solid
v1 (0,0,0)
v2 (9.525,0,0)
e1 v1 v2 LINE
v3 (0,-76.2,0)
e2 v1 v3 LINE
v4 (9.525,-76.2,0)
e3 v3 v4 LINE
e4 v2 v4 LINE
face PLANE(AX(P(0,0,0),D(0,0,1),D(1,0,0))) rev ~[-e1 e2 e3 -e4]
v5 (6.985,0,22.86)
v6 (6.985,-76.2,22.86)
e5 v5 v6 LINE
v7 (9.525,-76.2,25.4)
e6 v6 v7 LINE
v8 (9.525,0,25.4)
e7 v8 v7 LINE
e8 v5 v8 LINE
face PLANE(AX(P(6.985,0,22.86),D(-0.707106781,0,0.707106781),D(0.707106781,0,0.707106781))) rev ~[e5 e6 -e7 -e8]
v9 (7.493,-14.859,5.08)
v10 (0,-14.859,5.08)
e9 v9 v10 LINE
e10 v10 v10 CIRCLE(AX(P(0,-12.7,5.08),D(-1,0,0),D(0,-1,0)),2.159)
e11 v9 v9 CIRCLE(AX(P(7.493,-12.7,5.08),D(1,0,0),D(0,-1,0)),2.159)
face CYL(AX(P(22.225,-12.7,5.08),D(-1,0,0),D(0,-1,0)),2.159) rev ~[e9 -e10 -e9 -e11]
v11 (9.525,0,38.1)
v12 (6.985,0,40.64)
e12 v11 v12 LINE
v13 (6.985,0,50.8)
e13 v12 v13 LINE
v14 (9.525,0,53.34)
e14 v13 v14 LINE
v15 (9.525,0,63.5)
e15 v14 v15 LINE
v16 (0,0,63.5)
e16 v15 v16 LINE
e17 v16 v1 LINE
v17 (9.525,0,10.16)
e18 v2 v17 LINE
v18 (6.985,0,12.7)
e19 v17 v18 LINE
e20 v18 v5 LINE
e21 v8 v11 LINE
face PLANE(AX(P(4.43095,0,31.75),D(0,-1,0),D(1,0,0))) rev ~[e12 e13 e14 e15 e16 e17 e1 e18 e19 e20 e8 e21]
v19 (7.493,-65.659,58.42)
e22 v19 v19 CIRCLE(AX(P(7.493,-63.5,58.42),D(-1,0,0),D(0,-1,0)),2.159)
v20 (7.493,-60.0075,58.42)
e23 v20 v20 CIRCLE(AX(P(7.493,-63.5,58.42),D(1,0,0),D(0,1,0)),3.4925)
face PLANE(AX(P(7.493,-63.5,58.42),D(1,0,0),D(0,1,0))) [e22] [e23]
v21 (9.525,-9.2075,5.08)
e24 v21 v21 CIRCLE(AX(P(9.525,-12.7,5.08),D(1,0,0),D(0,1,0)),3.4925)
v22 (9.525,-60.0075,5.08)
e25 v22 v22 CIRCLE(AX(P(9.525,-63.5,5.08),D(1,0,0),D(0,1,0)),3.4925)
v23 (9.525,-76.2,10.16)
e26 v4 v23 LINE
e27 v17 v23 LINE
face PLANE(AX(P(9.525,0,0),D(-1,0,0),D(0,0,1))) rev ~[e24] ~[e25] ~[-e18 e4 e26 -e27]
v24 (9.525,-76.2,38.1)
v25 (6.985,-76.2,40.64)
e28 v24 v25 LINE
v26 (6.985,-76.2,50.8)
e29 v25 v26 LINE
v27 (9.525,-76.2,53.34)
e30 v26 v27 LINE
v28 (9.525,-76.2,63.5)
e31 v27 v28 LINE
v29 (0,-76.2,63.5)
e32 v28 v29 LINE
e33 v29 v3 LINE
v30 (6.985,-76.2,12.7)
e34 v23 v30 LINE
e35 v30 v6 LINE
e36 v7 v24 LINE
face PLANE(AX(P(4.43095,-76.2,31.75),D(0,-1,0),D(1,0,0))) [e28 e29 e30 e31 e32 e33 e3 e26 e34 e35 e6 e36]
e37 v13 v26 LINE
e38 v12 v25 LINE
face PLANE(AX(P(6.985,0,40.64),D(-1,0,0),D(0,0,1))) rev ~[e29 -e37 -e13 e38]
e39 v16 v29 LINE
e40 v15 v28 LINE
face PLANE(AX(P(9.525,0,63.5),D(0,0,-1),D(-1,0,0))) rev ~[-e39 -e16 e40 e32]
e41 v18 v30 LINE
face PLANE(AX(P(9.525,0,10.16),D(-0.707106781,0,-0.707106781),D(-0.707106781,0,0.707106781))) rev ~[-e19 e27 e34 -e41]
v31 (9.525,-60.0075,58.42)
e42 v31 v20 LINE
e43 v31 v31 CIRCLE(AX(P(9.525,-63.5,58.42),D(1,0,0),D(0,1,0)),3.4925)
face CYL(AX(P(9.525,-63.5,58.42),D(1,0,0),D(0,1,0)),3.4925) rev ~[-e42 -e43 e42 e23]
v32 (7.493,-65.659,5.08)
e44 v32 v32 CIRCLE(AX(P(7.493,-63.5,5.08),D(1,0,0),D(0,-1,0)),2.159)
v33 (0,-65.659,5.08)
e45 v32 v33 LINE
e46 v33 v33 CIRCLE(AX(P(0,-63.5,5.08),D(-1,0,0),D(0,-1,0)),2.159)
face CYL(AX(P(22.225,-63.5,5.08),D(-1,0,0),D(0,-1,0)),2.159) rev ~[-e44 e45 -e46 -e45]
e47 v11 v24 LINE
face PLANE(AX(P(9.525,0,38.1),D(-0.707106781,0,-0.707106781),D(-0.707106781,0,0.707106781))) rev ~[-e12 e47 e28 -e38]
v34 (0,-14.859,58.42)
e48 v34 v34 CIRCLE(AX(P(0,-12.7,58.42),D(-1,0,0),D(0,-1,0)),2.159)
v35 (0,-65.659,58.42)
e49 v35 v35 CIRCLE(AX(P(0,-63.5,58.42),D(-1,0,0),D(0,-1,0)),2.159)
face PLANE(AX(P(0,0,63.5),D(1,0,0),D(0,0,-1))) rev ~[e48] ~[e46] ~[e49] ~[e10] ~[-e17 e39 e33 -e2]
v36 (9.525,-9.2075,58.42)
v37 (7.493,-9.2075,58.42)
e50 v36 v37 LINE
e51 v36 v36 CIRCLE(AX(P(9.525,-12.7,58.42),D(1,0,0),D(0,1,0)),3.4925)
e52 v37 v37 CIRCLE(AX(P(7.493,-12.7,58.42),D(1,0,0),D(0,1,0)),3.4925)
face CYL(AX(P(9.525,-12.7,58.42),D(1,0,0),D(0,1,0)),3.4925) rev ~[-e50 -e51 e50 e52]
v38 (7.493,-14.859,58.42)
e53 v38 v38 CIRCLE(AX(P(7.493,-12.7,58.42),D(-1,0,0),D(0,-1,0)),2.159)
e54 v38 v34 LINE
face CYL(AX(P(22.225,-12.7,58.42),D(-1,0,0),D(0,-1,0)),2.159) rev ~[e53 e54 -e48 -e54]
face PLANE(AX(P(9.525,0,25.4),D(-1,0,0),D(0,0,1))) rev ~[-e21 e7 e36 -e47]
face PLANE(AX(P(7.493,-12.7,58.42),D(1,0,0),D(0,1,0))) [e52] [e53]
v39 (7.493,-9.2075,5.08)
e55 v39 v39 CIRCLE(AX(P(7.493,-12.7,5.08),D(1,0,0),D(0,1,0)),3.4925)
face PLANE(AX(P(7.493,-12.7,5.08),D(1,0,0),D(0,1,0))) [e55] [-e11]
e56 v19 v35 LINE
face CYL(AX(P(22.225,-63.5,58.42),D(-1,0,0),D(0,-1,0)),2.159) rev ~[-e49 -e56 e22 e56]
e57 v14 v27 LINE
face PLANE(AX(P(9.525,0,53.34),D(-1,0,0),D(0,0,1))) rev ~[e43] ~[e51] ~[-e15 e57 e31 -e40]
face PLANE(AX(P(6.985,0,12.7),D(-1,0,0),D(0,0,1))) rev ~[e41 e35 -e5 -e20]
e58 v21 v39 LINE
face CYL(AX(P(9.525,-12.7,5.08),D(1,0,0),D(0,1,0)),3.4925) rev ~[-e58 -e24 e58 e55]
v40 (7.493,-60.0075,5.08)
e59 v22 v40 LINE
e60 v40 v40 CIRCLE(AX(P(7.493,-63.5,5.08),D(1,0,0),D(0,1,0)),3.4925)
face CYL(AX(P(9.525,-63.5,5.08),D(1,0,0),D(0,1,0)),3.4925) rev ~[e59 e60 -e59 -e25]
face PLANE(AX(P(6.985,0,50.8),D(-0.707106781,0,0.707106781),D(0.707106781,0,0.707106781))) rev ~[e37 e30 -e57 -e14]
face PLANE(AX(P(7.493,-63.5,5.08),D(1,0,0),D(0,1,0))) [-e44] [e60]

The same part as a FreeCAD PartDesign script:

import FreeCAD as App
import Part
import Sketcher
from FreeCAD import Vector
Q = App.Units.Quantity


def add_polygon(sketch, points):
    """Adds a closed chain of lines whose ends are joined by coincident constraints."""
    first, n = sketch.GeometryCount, len(points)
    for a, b in zip(points, points[1:] + points[:1]):
        sketch.addGeometry(Part.LineSegment(App.Vector(*a, 0), App.Vector(*b, 0)), False)
    for i in range(n):
        sketch.addConstraint(Sketcher.Constraint("Coincident", first + i, 2, first + (i + 1) % n, 1))

doc = App.newDocument("Part")
body = doc.addObject("PartDesign::Body", "Body")

sketch1 = body.newObject("Sketcher::SketchObject", "Sketch")
sketch1.AttachmentSupport = (doc.getObject("XZ_Plane"), [""])
sketch1.MapMode = "FlatFace"
add_polygon(sketch1, [(0, 63.5), (0, 0), (9.5, 0), (9.5, 10.2), (7, 12.7), (7, 22.9), (9.5, 25.4), (9.5, 38.1), (7, 40.6), (7, 50.8), (9.5, 53.3), (9.5, 63.5)])
sketch1.addConstraint([
    Sketcher.Constraint("Vertical", 0),
    Sketcher.Constraint("Horizontal", 1),
    Sketcher.Constraint("Vertical", 2),
    Sketcher.Constraint("Vertical", 4),
    Sketcher.Constraint("Vertical", 6),
    Sketcher.Constraint("Vertical", 8),
    Sketcher.Constraint("Vertical", 10),
    Sketcher.Constraint("Horizontal", 11),
    Sketcher.Constraint("Coincident", 0, 2, -1, 1),
    Sketcher.Constraint("Perpendicular", 3, 5),
    Sketcher.Constraint("Perpendicular", 5, 7),
    Sketcher.Constraint("Perpendicular", 7, 9),
    Sketcher.Constraint("Vertical", 2, 2, 5, 2),
    Sketcher.Constraint("Vertical", 4, 2, 7, 2),
    Sketcher.Constraint("Vertical", 6, 2, 9, 2),
    Sketcher.Constraint("Equal", 2, 4),
    Sketcher.Constraint("Equal", 4, 8),
    Sketcher.Constraint("Equal", 8, 10),
    Sketcher.Constraint("Equal", 3, 5),
    Sketcher.Constraint("DistanceY", 0, 2, 0, 1, Q("2.5 in")),
    Sketcher.Constraint("DistanceY", 2, 1, 2, 2, Q("0.4 in")),
    Sketcher.Constraint("DistanceY", 6, 1, 6, 2, Q("0.5 in")),
    Sketcher.Constraint("DistanceX", 1, 1, 1, 2, Q("0.375 in")),
])
pad1 = body.newObject("PartDesign::Pad", "Pad")
pad1.Profile = sketch1
pad1.Length = Q("3 in")

sketch2 = body.newObject("Sketcher::SketchObject", "Sketch001")
sketch2.AttachmentSupport = (doc.getObject("YZ_Plane"), [""])
sketch2.MapMode = "FlatFace"
sketch2.AttachmentOffset = App.Placement(Vector(0, 0, 0.375 * 25.4), App.Rotation())
sketch2.addGeometry([
    Part.Circle(Vector(-63.5, 58.4, 0), Vector(0, 0, 1), 2.2),
    Part.Circle(Vector(-12.7, 58.4, 0), Vector(0, 0, 1), 2.2),
    Part.Circle(Vector(-63.5, 5.1, 0), Vector(0, 0, 1), 2.2),
    Part.Circle(Vector(-12.7, 5.1, 0), Vector(0, 0, 1), 2.2),
], False)
sketch2.addConstraint([
    Sketcher.Constraint("Equal", 0, 1),
    Sketcher.Constraint("Equal", 1, 2),
    Sketcher.Constraint("Equal", 2, 3),
    Sketcher.Constraint("Horizontal", 0, 3, 1, 3),
    Sketcher.Constraint("Horizontal", 2, 3, 3, 3),
    Sketcher.Constraint("Vertical", 0, 3, 2, 3),
    Sketcher.Constraint("Vertical", 1, 3, 3, 3),
    Sketcher.Constraint("Diameter", 0, Q("0.17 in")),
    Sketcher.Constraint("DistanceX", 0, 3, 1, 3, Q("2 in")),
    Sketcher.Constraint("DistanceX", 0, 3, -1, 1, Q("2.5 in")),
    Sketcher.Constraint("DistanceY", -1, 1, 0, 3, Q("2.3 in")),
    Sketcher.Constraint("DistanceY", -1, 1, 2, 3, Q("0.2 in")),
])
doc.recompute()
hole = body.newObject("PartDesign::Hole", "Hole")
hole.Profile = sketch2
hole.ThreadType = "None"
hole.Diameter = Q("0.17 in")
hole.DepthType = "Dimension"
hole.Depth = Q("0.5 in")
hole.DrillPoint = "Angled"
hole.DrillPointAngle = 118

sketch3 = body.newObject("Sketcher::SketchObject", "Sketch002")
sketch3.AttachmentSupport = (doc.getObject("YZ_Plane"), [""])
sketch3.MapMode = "FlatFace"
sketch3.AttachmentOffset = App.Placement(Vector(0, 0, 0.375 * 25.4), App.Rotation())
sketch3.addGeometry([
    Part.Circle(Vector(-63.5, 58.4, 0), Vector(0, 0, 1), 3.5),
    Part.Circle(Vector(-12.7, 58.4, 0), Vector(0, 0, 1), 3.5),
    Part.Circle(Vector(-63.5, 5.1, 0), Vector(0, 0, 1), 3.5),
    Part.Circle(Vector(-63.5, 5.1, 0), Vector(0, 0, 1), 2.2),
    Part.Circle(Vector(-12.7, 5.1, 0), Vector(0, 0, 1), 3.5),
    Part.Circle(Vector(-12.7, 5.1, 0), Vector(0, 0, 1), 2.2),
], False)
sketch3.addConstraint([
    Sketcher.Constraint("Coincident", 3, 3, 2, 3),
    Sketcher.Constraint("Coincident", 5, 3, 4, 3),
    Sketcher.Constraint("Equal", 0, 1),
    Sketcher.Constraint("Equal", 1, 2),
    Sketcher.Constraint("Equal", 2, 4),
    Sketcher.Constraint("Equal", 3, 5),
    Sketcher.Constraint("Horizontal", 0, 3, 1, 3),
    Sketcher.Constraint("Horizontal", 3, 3, 4, 3),
    Sketcher.Constraint("Vertical", 0, 3, 2, 3),
    Sketcher.Constraint("Vertical", 1, 3, 4, 3),
    Sketcher.Constraint("Diameter", 3, Q("0.17 in")),
    Sketcher.Constraint("Diameter", 0, Q("0.275 in")),
    Sketcher.Constraint("DistanceX", 0, 3, 1, 3, Q("2 in")),
    Sketcher.Constraint("DistanceX", 0, 3, -1, 1, Q("2.5 in")),
    Sketcher.Constraint("DistanceY", -1, 1, 0, 3, Q("2.3 in")),
    Sketcher.Constraint("DistanceY", -1, 1, 2, 3, Q("0.2 in")),
])
pocket1 = body.newObject("PartDesign::Pocket", "Pocket")
pocket1.Profile = sketch3
pocket1.Length = Q("0.08 in")

doc.recompute()
